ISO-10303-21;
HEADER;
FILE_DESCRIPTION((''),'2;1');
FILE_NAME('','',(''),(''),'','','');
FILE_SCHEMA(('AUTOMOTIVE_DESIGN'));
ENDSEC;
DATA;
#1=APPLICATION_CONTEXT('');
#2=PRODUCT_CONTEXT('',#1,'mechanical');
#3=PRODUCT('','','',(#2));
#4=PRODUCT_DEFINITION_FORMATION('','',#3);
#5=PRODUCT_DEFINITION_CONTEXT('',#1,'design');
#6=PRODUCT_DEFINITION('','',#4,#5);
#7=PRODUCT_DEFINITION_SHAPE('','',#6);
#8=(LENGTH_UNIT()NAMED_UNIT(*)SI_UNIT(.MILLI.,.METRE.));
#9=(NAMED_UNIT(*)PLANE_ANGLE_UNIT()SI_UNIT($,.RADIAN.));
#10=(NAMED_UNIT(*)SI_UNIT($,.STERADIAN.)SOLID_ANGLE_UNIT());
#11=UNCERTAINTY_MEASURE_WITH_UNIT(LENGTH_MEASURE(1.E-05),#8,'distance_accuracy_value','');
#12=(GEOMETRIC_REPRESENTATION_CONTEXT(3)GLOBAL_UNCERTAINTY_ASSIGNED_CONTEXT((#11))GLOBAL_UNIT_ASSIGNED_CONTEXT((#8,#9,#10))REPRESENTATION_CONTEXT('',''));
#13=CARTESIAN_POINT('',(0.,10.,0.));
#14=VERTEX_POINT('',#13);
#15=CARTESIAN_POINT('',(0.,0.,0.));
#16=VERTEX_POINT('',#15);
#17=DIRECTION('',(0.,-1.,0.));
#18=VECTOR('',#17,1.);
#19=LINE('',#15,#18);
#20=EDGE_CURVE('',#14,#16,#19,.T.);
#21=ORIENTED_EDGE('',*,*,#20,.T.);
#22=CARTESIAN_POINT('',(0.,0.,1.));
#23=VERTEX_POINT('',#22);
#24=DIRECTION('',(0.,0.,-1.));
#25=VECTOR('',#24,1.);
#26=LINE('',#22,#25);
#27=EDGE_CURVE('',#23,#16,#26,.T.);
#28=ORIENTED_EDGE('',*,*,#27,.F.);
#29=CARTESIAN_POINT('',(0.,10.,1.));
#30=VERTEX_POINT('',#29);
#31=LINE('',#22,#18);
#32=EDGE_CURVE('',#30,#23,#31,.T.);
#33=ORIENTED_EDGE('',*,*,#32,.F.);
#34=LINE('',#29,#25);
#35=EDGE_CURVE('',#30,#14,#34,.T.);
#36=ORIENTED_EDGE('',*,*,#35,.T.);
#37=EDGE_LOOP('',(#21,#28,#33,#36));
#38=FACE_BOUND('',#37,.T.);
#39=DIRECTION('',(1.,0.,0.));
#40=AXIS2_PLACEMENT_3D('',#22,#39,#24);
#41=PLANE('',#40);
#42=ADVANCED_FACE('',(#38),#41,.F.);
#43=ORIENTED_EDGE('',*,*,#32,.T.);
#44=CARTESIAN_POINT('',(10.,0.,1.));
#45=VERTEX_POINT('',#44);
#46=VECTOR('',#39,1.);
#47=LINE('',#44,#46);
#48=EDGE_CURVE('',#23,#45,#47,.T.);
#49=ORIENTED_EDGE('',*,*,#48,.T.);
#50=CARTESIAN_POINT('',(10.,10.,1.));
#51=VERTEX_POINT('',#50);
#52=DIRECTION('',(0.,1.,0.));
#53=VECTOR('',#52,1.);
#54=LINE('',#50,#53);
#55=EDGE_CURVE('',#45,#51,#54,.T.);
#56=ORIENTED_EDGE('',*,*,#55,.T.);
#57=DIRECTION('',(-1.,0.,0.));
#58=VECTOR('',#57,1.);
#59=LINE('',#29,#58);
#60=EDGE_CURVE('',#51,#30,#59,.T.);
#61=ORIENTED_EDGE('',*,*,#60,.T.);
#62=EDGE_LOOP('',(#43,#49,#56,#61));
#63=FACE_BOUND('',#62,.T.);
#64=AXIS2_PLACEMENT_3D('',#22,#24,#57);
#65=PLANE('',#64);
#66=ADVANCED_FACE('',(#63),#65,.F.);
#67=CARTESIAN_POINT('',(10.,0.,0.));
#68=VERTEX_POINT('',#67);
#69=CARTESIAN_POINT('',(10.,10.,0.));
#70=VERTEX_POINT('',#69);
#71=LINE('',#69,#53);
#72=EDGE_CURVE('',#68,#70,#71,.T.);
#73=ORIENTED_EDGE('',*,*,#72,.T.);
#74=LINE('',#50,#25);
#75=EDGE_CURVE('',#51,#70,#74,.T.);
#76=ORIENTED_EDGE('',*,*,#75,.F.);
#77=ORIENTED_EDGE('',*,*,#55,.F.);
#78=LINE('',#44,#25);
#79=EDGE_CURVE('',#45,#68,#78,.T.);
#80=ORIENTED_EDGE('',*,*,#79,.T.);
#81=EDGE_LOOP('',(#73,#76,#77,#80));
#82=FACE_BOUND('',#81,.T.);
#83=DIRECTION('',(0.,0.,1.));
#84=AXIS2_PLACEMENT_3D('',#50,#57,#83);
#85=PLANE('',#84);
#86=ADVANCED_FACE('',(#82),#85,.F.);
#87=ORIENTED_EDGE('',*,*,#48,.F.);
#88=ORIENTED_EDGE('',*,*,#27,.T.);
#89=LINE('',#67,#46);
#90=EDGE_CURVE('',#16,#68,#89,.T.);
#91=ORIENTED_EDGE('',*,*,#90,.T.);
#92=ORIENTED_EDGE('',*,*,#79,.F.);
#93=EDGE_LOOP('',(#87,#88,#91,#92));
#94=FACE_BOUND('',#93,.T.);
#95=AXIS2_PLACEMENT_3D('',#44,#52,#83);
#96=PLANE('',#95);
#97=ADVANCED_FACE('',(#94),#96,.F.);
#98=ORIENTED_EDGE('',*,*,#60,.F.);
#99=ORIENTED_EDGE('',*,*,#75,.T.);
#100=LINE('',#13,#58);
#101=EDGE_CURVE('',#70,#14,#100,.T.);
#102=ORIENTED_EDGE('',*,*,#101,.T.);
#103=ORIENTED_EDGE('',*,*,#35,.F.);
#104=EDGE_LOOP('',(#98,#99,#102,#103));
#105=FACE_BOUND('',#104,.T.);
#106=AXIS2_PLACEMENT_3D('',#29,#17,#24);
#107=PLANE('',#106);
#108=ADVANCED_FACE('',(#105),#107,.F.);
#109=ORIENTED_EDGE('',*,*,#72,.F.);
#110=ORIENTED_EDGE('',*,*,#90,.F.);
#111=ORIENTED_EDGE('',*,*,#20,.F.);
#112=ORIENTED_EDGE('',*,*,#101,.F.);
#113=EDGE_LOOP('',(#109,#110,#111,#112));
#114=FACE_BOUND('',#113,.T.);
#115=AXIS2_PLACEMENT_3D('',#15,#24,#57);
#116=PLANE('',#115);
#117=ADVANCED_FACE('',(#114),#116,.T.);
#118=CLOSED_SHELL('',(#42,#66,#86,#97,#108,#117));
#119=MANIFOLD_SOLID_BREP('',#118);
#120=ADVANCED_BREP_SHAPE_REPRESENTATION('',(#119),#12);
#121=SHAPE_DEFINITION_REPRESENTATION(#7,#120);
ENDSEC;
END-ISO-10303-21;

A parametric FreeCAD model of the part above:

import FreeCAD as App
import Part
import Sketcher
from FreeCAD import Vector
Q = App.Units.Quantity


def add_polygon(sketch, points):
    """Adds a closed chain of lines whose ends are joined by coincident constraints."""
    first, n = sketch.GeometryCount, len(points)
    for a, b in zip(points, points[1:] + points[:1]):
        sketch.addGeometry(Part.LineSegment(App.Vector(*a, 0), App.Vector(*b, 0)), False)
    for i in range(n):
        sketch.addConstraint(Sketcher.Constraint("Coincident", first + i, 2, first + (i + 1) % n, 1))

doc = App.newDocument("Part")
body = doc.addObject("PartDesign::Body", "Body")

# Sketch on XY plane
sketch1 = doc.addObject("Sketcher::SketchObject", "Sketch")
body.addObject(sketch1)
sketch1.AttachmentSupport = (doc.XY_Plane, [""])
sketch1.MapMode = "FlatFace"
add_polygon(sketch1, [(0, 10), (0, 0), (10, 0), (10, 10)])  # lines 0-3
sketch1.addConstraint([
    Sketcher.Constraint("Vertical", 0),
    Sketcher.Constraint("Horizontal", 1),
    Sketcher.Constraint("Vertical", 2),
    Sketcher.Constraint("Horizontal", 3),
    Sketcher.Constraint("Coincident", 0, 2, -1, 1),
    Sketcher.Constraint("Equal", 3, 0),
    Sketcher.Constraint("DistanceX", 1, 1, 1, 2, Q("10 mm")),
])
pad1 = doc.addObject("PartDesign::Pad", "Pad")
body.addObject(pad1)
pad1.Profile = sketch1
pad1.Length = 1

doc.recompute()
